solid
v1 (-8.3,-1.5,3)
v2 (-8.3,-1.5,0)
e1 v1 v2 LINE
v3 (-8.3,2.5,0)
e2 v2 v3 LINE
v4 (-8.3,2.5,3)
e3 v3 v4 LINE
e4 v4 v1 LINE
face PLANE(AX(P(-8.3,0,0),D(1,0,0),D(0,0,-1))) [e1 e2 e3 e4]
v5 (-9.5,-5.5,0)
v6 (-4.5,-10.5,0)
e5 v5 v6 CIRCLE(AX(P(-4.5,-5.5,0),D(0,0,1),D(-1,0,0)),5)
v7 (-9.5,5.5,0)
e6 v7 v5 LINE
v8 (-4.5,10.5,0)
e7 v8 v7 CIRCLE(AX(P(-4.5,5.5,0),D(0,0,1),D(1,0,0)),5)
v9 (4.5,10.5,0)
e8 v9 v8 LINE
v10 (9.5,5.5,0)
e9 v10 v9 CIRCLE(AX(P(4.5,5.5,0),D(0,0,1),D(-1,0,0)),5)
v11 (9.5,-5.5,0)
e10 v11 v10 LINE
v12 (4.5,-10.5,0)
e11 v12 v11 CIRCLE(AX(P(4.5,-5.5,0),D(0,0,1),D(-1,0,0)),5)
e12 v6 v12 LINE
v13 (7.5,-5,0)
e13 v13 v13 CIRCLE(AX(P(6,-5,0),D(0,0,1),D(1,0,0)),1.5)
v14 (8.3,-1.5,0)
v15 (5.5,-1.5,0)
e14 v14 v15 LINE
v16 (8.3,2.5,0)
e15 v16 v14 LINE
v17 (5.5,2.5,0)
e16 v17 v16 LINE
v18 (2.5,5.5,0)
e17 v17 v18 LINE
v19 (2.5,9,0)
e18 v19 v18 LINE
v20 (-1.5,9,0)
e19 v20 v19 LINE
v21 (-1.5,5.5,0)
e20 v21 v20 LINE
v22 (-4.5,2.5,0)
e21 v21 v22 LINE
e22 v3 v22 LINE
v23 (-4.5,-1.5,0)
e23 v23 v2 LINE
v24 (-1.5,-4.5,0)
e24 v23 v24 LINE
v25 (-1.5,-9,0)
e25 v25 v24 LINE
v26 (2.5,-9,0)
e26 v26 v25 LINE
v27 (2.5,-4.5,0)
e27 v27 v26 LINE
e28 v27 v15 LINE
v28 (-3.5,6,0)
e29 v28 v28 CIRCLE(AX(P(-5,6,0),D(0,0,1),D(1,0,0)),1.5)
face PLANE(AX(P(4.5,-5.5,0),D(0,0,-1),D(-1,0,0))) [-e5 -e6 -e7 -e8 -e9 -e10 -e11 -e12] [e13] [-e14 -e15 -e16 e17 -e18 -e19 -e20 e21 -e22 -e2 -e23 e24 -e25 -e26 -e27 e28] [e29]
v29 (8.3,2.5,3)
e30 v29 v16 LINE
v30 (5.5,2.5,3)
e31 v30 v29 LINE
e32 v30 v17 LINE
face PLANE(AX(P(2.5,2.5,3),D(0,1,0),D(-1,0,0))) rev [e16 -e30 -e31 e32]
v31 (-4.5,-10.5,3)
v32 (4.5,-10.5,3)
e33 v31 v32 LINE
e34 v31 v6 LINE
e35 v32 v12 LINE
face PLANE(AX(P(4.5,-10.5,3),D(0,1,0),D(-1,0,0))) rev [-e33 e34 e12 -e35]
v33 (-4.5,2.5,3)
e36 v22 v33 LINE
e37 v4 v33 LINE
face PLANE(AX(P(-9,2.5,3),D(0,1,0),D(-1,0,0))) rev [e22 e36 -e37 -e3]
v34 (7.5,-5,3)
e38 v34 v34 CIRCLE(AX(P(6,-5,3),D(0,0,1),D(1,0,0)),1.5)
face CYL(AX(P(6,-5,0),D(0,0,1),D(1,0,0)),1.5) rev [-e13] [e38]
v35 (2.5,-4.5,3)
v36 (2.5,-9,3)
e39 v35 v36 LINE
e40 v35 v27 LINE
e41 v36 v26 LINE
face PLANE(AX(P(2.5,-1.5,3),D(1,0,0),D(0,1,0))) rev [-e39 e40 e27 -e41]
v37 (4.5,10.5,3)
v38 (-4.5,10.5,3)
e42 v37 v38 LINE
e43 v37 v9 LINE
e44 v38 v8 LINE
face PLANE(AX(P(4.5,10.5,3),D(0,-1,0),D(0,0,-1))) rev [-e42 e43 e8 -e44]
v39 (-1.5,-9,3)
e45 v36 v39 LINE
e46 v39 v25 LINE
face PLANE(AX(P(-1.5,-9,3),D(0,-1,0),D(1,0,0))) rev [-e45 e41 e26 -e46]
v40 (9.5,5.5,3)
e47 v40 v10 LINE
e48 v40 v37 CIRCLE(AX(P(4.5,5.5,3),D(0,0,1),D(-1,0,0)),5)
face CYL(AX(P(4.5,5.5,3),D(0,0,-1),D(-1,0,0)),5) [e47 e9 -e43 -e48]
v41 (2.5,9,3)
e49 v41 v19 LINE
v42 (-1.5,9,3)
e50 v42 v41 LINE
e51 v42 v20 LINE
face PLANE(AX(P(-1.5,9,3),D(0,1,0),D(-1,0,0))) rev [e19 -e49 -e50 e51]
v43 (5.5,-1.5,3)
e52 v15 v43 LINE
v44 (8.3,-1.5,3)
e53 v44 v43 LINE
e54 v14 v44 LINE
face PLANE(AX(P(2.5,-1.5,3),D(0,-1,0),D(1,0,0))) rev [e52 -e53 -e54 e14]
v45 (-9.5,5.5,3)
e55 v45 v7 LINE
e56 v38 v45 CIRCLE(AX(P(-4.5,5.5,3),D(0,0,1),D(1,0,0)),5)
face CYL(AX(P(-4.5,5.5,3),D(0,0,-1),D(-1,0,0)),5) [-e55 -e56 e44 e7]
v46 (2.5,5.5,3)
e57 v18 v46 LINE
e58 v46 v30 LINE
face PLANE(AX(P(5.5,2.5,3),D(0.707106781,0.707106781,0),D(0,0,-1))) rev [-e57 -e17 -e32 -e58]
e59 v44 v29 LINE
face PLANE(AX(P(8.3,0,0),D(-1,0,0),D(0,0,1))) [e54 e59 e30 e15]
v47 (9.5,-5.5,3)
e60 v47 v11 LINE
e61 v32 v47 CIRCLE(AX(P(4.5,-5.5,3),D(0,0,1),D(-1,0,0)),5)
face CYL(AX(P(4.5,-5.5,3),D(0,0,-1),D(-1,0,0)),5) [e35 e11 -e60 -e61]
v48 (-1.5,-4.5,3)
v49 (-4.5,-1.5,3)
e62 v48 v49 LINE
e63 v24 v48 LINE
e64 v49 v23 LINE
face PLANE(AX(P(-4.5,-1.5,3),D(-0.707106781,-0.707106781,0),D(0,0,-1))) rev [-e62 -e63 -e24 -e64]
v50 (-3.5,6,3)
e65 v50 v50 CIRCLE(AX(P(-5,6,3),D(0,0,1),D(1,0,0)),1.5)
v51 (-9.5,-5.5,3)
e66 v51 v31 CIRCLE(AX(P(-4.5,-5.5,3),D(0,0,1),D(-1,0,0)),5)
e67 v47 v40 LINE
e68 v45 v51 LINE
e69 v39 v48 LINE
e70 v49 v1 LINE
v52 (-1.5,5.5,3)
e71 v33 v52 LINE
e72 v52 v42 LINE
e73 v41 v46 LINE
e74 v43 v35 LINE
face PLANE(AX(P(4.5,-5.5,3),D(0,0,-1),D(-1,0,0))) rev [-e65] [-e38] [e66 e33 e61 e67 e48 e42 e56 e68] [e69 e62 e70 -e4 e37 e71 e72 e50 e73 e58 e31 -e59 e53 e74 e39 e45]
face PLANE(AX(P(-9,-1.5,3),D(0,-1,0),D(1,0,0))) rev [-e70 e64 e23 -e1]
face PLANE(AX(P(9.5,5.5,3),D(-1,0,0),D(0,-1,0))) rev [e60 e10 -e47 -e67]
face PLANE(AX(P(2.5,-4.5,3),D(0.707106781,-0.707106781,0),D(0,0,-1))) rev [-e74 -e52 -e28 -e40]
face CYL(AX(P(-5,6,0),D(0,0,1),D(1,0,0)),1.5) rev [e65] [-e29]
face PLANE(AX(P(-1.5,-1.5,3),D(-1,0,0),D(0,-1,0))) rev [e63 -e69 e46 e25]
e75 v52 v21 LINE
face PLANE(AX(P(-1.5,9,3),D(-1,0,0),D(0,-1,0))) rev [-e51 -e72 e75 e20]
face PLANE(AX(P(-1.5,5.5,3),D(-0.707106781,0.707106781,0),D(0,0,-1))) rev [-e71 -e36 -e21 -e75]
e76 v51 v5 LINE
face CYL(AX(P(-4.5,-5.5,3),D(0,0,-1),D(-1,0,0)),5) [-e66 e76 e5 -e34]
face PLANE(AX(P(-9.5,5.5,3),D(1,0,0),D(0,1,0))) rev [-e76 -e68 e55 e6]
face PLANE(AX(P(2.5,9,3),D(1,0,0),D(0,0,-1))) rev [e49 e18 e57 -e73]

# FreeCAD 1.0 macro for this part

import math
import FreeCAD as App
import Part
import Sketcher

V = App.Vector
Q = App.Units.Quantity


def edges_at(feature, points):
    """Names of the edges that pass closest to the given points."""
    edges = feature.Shape.Edges
    near = lambda p: min(range(len(edges)), key=lambda i: edges[i].distToShape(Part.Vertex(*p))[0])
    return sorted({f"Edge{near(p) + 1}" for p in points})


def add_polygon(sketch, points):
    """Adds a closed chain of lines whose ends are joined by coincident constraints."""
    first, n = sketch.GeometryCount, len(points)
    for a, b in zip(points, points[1:] + points[:1]):
        sketch.addGeometry(Part.LineSegment(App.Vector(*a, 0), App.Vector(*b, 0)), False)
    for i in range(n):
        sketch.addConstraint(Sketcher.Constraint("Coincident", first + i, 2, first + (i + 1) % n, 1))

doc = App.newDocument("Part")
body = doc.addObject("PartDesign::Body", "Body")

# Sketch on XY plane
sketch1 = body.newObject("Sketcher::SketchObject", "Sketch")
sketch1.AttachmentSupport = (doc.getObject("XY_Plane"), [""])
sketch1.MapMode = "FlatFace"
sketch1.addGeometry([
    Part.LineSegment(V(4, 10, 0), V(-4, 10, 0)),  # 0
    Part.ArcOfCircle(Part.Circle(V(-4, 6, 0), V(0, 0, 1), 5), math.radians(90), math.radians(180)),  # 1
    Part.LineSegment(V(-10, 6, 0), V(-10, -6, 0)),  # 2
    Part.ArcOfCircle(Part.Circle(V(-4, -6, 0), V(0, 0, 1), 5), math.radians(180), math.radians(270)),  # 3
    Part.LineSegment(V(-4, -10, 0), V(4, -10, 0)),  # 4
    Part.ArcOfCircle(Part.Circle(V(4, -6, 0), V(0, 0, 1), 5), math.radians(-90), math.radians(0)),  # 5
    Part.LineSegment(V(10, -6, 0), V(10, 6, 0)),  # 6
    Part.ArcOfCircle(Part.Circle(V(4, 6, 0), V(0, 0, 1), 5), math.radians(0), math.radians(90)),  # 7
], False)
sketch1.addConstraint([
    Sketcher.Constraint("Tangent", 0, 2, 1, 1),
    Sketcher.Constraint("Tangent", 1, 2, 2, 1),
    Sketcher.Constraint("Tangent", 2, 2, 3, 1),
    Sketcher.Constraint("Tangent", 3, 2, 4, 1),
    Sketcher.Constraint("Tangent", 4, 2, 5, 1),
    Sketcher.Constraint("Tangent", 5, 2, 6, 1),
    Sketcher.Constraint("Tangent", 6, 2, 7, 1),
    Sketcher.Constraint("Tangent", 7, 2, 0, 1),
    Sketcher.Constraint("Horizontal", 0),
    Sketcher.Constraint("Vertical", 2),
    Sketcher.Constraint("Horizontal", 4),
    Sketcher.Constraint("Vertical", 6),
    Sketcher.Constraint("Equal", 1, 3),
    Sketcher.Constraint("Equal", 3, 5),
    Sketcher.Constraint("Equal", 5, 7),
    Sketcher.Constraint("Symmetric", 1, 3, 5, 3, -1, 1),
    Sketcher.Constraint("Radius", 1, Q("5 mm")),
    Sketcher.Constraint("DistanceX", 0, 2, 0, 1, Q("9 mm")),
    Sketcher.Constraint("DistanceY", 2, 2, 2, 1, Q("11 mm")),
])
pad1 = body.newObject("PartDesign::Pad", "Pad")
pad1.Profile = sketch1
pad1.Length = 3

# Sketch on XY plane
sketch2 = body.newObject("Sketcher::SketchObject", "Sketch001")
sketch2.AttachmentSupport = (doc.getObject("XY_Plane"), [""])
sketch2.MapMode = "FlatFace"
add_polygon(sketch2, [(2.5, -1.5), (2.5, -9), (-1.5, -9), (-1.5, -1.5), (-9, -1.5), (-9, 2.5), (-1.5, 2.5), (-1.5, 9), (2.5, 9), (2.5, 2.5), (9, 2.5), (9, -1.5)])  # lines 0-11
sketch2.addConstraint([
    Sketcher.Constraint("Vertical", 0),
    Sketcher.Constraint("Horizontal", 1),
    Sketcher.Constraint("Vertical", 2),
    Sketcher.Constraint("Horizontal", 3),
    Sketcher.Constraint("Vertical", 4),
    Sketcher.Constraint("Horizontal", 5),
    Sketcher.Constraint("Vertical", 6),
    Sketcher.Constraint("Horizontal", 7),
    Sketcher.Constraint("Vertical", 8),
    Sketcher.Constraint("Horizontal", 9),
    Sketcher.Constraint("Vertical", 10),
    Sketcher.Constraint("Horizontal", 11),
    Sketcher.Constraint("Symmetric", 4, 2, 9, 2, -2),
    Sketcher.Constraint("Symmetric", 1, 2, 6, 2, -1),
    Sketcher.Constraint("Horizontal", 3, 2, 10, 2),
    Sketcher.Constraint("Vertical", 0, 2, 7, 2),
    Sketcher.Constraint("Equal", 5, 0),
    Sketcher.Constraint("Equal", 7, 4),
    Sketcher.Constraint("Equal", 11, 6),
    Sketcher.Constraint("DistanceX", 1, 2, 1, 1, Q("4 mm")),
    Sketcher.Constraint("DistanceX", 3, 2, 3, 1, Q("7.5 mm")),
    Sketcher.Constraint("DistanceX", 9, 1, 9, 2, Q("6.5 mm")),
])
pocket1 = body.newObject("PartDesign::Pocket", "Pocket")
pocket1.Profile = sketch2
pocket1.Length = 3
pocket1.Reversed = True

# Sketch on XY plane
sketch3 = body.newObject("Sketcher::SketchObject", "Sketch002")
sketch3.AttachmentSupport = (doc.getObject("XY_Plane"), [""])
sketch3.MapMode = "FlatFace"
sketch3.AttachmentOffset = App.Placement(V(0, 0, 3), App.Rotation())
sketch3.addGeometry([
    Part.Circle(V(6, -5, 0), V(0, 0, 1), 1.5),
    Part.Circle(V(-5, 6, 0), V(0, 0, 1), 1.5),
], False)
sketch3.addConstraint([
    Sketcher.Constraint("Equal", 0, 1),
    Sketcher.Constraint("Diameter", 0, Q("3 mm")),
    Sketcher.Constraint("DistanceX", -1, 1, 0, 3, Q("6 mm")),
    Sketcher.Constraint("DistanceY", 0, 3, -1, 1, Q("5 mm")),
    Sketcher.Constraint("DistanceX", 1, 3, -1, 1, Q("5 mm")),
    Sketcher.Constraint("DistanceY", -1, 1, 1, 3, Q("6 mm")),
])
pocket2 = body.newObject("PartDesign::Pocket", "Pocket001")
pocket2.Profile = sketch3
pocket2.Length = 3
doc.recompute()

chamfer = body.newObject("PartDesign::Chamfer", "Chamfer")
chamfer.Base = (pocket2, edges_at(pocket2, [
    (2.5, -1.5, 1.5),
    (2.5, 2.5, 1.5),
    (-1.5, 2.5, 1.5),
    (-1.5, -1.5, 1.5),
]))
chamfer.Size = 3

# Sketch on YZ plane
sketch4 = body.newObject("Sketcher::SketchObject", "Sketch003")
sketch4.AttachmentSupport = (doc.getObject("YZ_Plane"), [""])
sketch4.MapMode = "FlatFace"
sketch4.AttachmentOffset = App.Placement(V(0, 0, -9), App.Rotation())
add_polygon(sketch4, [(2.5, 3), (-1.5, 3), (-1.5, 0), (2.5, 0)])  # lines 0-3
sketch4.addConstraint([
    Sketcher.Constraint("Horizontal", 0),
    Sketcher.Constraint("Vertical", 1),
    Sketcher.Constraint("Horizontal", 2),
    Sketcher.Constraint("Vertical", 3),
    Sketcher.Constraint("PointOnObject", 1, 2, -1),
    Sketcher.Constraint("DistanceX", 0, 2, 0, 1, Q("4 mm")),
    Sketcher.Constraint("DistanceY", 1, 2, 1, 1, Q("3 mm")),
    Sketcher.Constraint("DistanceX", 0, 2, -1, 1, Q("1.5 mm")),
])
pad2 = body.newObject("PartDesign::Pad", "Pad001")
pad2.Profile = sketch4
pad2.Length = 0.7

# Sketch on YZ plane
sketch5 = body.newObject("Sketcher::SketchObject", "Sketch004")
sketch5.AttachmentSupport = (doc.getObject("YZ_Plane"), [""])
sketch5.MapMode = "FlatFace"
sketch5.AttachmentOffset = App.Placement(V(0, 0, 9), App.Rotation())
add_polygon(sketch5, [(2.5, 0), (-1.5, 0), (-1.5, 3), (2.5, 3)])  # lines 0-3
sketch5.addConstraint([
    Sketcher.Constraint("Horizontal", 0),
    Sketcher.Constraint("Vertical", 1),
    Sketcher.Constraint("Horizontal", 2),
    Sketcher.Constraint("Vertical", 3),
    Sketcher.Constraint("PointOnObject", 0, 2, -1),
    Sketcher.Constraint("DistanceX", 0, 2, 0, 1, Q("4 mm")),
    Sketcher.Constraint("DistanceY", 1, 1, 1, 2, Q("3 mm")),
    Sketcher.Constraint("DistanceX", 0, 2, -1, 1, Q("1.5 mm")),
])
pad3 = body.newObject("PartDesign::Pad", "Pad002")
pad3.Profile = sketch5
pad3.Length = 0.7
pad3.Reversed = True

doc.recompute()
